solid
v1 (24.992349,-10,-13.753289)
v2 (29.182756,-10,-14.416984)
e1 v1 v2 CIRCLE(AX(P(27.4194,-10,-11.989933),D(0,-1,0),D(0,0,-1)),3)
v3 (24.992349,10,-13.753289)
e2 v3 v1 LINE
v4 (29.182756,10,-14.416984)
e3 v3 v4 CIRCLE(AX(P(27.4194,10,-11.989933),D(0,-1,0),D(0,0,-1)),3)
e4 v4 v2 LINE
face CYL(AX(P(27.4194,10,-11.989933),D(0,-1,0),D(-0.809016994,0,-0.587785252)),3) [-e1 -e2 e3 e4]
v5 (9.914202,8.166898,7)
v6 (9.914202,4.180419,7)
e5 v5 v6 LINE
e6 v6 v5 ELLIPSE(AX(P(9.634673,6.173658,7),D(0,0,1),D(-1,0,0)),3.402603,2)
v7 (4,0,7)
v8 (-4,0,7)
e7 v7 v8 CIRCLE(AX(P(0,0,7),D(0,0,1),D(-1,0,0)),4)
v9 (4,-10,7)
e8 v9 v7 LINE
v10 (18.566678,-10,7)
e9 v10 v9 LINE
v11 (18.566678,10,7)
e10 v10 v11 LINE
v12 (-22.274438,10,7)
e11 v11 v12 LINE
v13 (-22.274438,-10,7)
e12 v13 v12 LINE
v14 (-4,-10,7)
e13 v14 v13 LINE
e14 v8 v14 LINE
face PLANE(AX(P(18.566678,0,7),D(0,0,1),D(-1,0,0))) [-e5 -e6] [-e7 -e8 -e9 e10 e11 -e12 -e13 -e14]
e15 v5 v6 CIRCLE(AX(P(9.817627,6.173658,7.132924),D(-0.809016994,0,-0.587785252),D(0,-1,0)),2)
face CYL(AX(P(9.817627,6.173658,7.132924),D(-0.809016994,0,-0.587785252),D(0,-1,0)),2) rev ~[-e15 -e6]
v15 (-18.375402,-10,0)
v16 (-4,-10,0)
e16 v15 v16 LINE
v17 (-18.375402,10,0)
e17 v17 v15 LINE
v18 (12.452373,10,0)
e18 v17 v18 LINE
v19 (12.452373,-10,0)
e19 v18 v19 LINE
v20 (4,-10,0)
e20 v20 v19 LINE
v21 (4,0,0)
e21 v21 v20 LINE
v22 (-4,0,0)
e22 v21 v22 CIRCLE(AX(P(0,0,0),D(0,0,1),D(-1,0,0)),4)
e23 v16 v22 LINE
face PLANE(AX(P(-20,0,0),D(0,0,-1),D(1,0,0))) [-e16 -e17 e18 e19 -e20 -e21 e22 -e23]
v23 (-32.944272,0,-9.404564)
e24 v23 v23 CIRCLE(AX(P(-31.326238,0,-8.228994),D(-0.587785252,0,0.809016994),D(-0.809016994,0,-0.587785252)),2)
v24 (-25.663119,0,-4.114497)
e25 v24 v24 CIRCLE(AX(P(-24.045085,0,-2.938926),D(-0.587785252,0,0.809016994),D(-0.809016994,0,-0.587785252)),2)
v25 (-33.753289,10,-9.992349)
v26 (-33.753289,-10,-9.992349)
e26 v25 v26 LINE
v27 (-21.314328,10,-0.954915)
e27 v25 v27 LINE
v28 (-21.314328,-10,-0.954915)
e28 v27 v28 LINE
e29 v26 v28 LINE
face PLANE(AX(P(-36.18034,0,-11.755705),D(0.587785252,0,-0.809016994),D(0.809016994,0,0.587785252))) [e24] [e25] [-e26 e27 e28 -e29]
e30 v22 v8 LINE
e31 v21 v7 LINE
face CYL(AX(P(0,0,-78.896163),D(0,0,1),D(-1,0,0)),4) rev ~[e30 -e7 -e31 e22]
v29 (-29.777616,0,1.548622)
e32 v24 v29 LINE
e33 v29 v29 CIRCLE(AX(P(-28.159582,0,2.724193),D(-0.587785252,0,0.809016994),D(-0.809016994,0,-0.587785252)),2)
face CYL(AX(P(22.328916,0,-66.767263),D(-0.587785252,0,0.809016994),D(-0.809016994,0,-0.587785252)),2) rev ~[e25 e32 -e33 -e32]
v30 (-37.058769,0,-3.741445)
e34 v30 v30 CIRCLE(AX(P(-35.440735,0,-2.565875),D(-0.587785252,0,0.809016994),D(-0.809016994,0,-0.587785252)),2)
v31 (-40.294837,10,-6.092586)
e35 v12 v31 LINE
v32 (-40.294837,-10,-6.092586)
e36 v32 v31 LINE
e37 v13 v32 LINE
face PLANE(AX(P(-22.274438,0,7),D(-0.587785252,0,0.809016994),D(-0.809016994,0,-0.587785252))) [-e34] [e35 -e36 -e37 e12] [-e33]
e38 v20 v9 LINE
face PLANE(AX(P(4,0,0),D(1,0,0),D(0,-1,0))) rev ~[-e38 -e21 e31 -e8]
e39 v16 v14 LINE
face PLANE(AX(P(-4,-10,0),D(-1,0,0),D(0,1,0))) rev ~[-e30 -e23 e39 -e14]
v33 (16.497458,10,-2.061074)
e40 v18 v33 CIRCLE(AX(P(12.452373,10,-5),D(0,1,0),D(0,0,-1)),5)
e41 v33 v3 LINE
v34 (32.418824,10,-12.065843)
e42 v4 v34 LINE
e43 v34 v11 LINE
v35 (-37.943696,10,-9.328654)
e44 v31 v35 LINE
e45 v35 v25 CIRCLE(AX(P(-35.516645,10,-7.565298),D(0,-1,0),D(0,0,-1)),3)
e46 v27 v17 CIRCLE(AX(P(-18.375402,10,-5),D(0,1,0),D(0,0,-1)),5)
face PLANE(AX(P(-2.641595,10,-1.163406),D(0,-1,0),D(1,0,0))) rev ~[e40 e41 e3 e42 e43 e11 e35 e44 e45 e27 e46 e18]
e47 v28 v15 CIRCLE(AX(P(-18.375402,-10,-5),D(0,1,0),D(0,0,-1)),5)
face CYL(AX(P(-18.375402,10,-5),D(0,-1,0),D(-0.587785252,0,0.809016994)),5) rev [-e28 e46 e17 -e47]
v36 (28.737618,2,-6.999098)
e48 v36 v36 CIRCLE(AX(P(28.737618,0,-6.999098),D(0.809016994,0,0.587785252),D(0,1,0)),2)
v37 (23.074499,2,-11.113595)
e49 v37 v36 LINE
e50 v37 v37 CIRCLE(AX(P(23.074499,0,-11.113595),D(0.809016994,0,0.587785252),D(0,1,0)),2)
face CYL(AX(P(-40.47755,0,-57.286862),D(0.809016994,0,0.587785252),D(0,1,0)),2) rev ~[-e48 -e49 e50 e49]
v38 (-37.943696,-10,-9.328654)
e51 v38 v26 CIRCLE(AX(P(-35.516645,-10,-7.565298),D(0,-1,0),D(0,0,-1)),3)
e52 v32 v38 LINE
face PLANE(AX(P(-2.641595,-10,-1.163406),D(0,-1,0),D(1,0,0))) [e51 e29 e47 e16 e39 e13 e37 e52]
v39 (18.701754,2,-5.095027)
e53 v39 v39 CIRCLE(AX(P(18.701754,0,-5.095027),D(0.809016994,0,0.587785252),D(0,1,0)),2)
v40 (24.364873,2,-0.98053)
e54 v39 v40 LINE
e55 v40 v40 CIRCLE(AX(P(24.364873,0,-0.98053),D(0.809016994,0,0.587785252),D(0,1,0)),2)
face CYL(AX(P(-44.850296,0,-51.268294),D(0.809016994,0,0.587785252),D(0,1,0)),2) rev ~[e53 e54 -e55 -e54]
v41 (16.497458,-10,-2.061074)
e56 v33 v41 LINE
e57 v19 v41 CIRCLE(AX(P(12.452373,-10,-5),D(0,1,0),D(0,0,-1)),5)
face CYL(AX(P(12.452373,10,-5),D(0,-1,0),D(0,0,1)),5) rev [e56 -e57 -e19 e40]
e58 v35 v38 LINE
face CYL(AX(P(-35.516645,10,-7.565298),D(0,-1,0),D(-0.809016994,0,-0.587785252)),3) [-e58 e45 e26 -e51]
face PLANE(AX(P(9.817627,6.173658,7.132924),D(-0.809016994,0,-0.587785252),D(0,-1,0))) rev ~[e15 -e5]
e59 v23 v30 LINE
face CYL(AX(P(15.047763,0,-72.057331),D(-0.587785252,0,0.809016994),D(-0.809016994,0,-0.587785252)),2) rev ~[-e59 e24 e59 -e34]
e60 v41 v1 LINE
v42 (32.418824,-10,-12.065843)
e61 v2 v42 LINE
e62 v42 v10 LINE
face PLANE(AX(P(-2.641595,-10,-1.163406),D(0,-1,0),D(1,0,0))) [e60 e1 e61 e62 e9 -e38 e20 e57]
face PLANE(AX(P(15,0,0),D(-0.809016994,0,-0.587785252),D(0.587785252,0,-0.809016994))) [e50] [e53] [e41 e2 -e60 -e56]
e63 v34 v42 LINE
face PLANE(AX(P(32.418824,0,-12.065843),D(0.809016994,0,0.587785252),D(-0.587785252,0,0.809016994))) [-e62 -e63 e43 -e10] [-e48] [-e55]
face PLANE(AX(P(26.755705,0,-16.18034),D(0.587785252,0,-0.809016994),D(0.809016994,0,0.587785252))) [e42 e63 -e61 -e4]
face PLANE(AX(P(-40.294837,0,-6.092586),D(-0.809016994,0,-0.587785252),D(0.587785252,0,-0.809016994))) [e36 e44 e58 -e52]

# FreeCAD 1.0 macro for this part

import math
import FreeCAD as App
import Part
import Sketcher

V = App.Vector
Q = App.Units.Quantity


def edges_at(feature, points):
    """Names of the edges that pass closest to the given points."""
    edges = feature.Shape.Edges
    near = lambda p: min(range(len(edges)), key=lambda i: edges[i].distToShape(Part.Vertex(*p))[0])
    return sorted({f"Edge{near(p) + 1}" for p in points})


def add_polygon(sketch, points):
    """Adds a closed chain of lines whose ends are joined by coincident constraints."""
    first, n = sketch.GeometryCount, len(points)
    for a, b in zip(points, points[1:] + points[:1]):
        sketch.addGeometry(Part.LineSegment(App.Vector(*a, 0), App.Vector(*b, 0)), False)
    for i in range(n):
        sketch.addConstraint(Sketcher.Constraint("Coincident", first + i, 2, first + (i + 1) % n, 1))

doc = App.newDocument("Part")
body = doc.addObject("PartDesign::Body", "Body")

# Sketch on XZ plane
sketch1 = body.newObject("Sketcher::SketchObject", "Sketch")
sketch1.AttachmentSupport = (doc.getObject("XZ_Plane"), [""])
sketch1.MapMode = "FlatFace"
add_polygon(sketch1, [(-40, -6), (-36, -12), (-20, 0), (15, 0), (27, -16), (32, -12), (19, 7), (-22, 7)])  # lines 0-7
sketch1.addConstraint([
    Sketcher.Constraint("Horizontal", 2),
    Sketcher.Constraint("Horizontal", 6),
    Sketcher.Constraint("PointOnObject", 1, 2, -1),
    Sketcher.Constraint("Perpendicular", 0, 1),
    Sketcher.Constraint("Perpendicular", 1, 3),
    Sketcher.Constraint("Perpendicular", 3, 4),
    Sketcher.Constraint("Perpendicular", 4, 5),
    Sketcher.Constraint("Perpendicular", 5, 7),
    Sketcher.Constraint("Equal", 1, 3),
    Sketcher.Constraint("Equal", 0, 4),
    Sketcher.Constraint("DistanceX", 2, 1, 2, 2, 35.0),
    Sketcher.Constraint("Angle", 0, Q("-54 deg")),
    Sketcher.Constraint("Distance", 0, 7.0),
    Sketcher.Constraint("Distance", 1, 20.0),
    Sketcher.Constraint("DistanceX", 1, 2, -1, 1, 20.0),
    Sketcher.Constraint("DistanceY", -1, 1, 5, 2, 7.0),
])
pad1 = body.newObject("PartDesign::Pad", "Pad")
pad1.Profile = sketch1
pad1.Type = "TwoLengths"
pad1.Length = 10
pad1.Length2 = 10

# Sketch on an angled plane
sketch2 = body.newObject("Sketcher::SketchObject", "Sketch001")
sketch2.Placement = App.Placement(V(-6.90983, 0, 9.510565), App.Rotation(V(0.809016994, 0, 0.587785252), V(0, -0.999999999, 0), V(0.587785252, 0, -0.809016994), "ZXY"))
sketch2.addGeometry([
    Part.Circle(V(0, -37.9, 0), V(0, 0, 1), 2),
    Part.Circle(V(0, -24, 0), V(0, 0, 1), 2),
    Part.Circle(V(-30.2, 0, 0), V(0, 0, 1), 2),
    Part.Circle(V(-21.2, 0, 0), V(0, 0, 1), 2),
], False)
sketch2.addConstraint([
    Sketcher.Constraint("Equal", 0, 1),
    Sketcher.Constraint("Equal", 1, 2),
    Sketcher.Constraint("Equal", 2, 3),
    Sketcher.Constraint("PointOnObject", 0, 3, -2),
    Sketcher.Constraint("PointOnObject", 1, 3, -2),
    Sketcher.Constraint("PointOnObject", 2, 3, -1),
    Sketcher.Constraint("PointOnObject", 3, 3, -1),
    Sketcher.Constraint("Diameter", 0, 4.0),
    Sketcher.Constraint("DistanceX", 2, 3, 3, 3, 9.0),
    Sketcher.Constraint("DistanceX", 2, 3, -1, 1, 30.18034),
    Sketcher.Constraint("DistanceY", 0, 3, -1, 1, 37.853277),
    Sketcher.Constraint("DistanceY", 1, 3, -1, 1, 24.008233),
])
doc.recompute()
hole = body.newObject("PartDesign::Hole", "Hole")
hole.Profile = sketch2
hole.ThreadType = "None"
hole.Diameter = 4
hole.DepthType = "ThroughAll"

# Sketch on an angled plane
sketch3 = body.newObject("Sketcher::SketchObject", "Sketch002")
sketch3.Placement = App.Placement(V(9.817627, 0, 7.132924), App.Rotation(V(0, -1, 0), V(-0.587785252, 0, 0.809016994), V(-0.809016994, 0, -0.587785252), "ZXY"))
sketch3.addGeometry([
    Part.Circle(V(-6.2, 0, 0), V(0, 0, 1), 2),
    Part.Circle(V(16.1, 0, 0), V(0, 0, 1), 2),
], False)
sketch3.addConstraint([
    Sketcher.Constraint("Equal", 0, 1),
    Sketcher.Constraint("PointOnObject", 0, 3, -1),
    Sketcher.Constraint("PointOnObject", 1, 3, -1),
    Sketcher.Constraint("Diameter", 0, 4.0),
    Sketcher.Constraint("DistanceX", 0, 3, -1, 1, 6.173658),
    Sketcher.Constraint("DistanceX", -1, 1, 1, 3, 16.058304),
])
pocket1 = body.newObject("PartDesign::Pocket", "Pocket")
pocket1.Profile = sketch3
pocket1.Type = "ThroughAll"

# Sketch on XY plane
sketch4 = body.newObject("Sketcher::SketchObject", "Sketch003")
sketch4.AttachmentSupport = (doc.getObject("XY_Plane"), [""])
sketch4.MapMode = "FlatFace"
sketch4.addGeometry(Part.Circle(V(0, 0, 0), V(0, 0, 1), 4), False)
sketch4.addConstraint([
    Sketcher.Constraint("Coincident", 0, 3, -1, 1),
    Sketcher.Constraint("Diameter", 0, 8.0),
])
doc.recompute()
hole2 = body.newObject("PartDesign::Hole", "Hole001")
hole2.Profile = sketch4
hole2.ThreadType = "None"
hole2.Diameter = 8
hole2.DepthType = "ThroughAll"
hole2.Reversed = True
doc.recompute()

fillet = body.newObject("PartDesign::Fillet", "Fillet")
fillet.Base = (hole2, edges_at(hole2, [(-36.18, 0, -11.756), (26.756, 0, -16.18)]))
fillet.Radius = 3
doc.recompute()

fillet2 = body.newObject("PartDesign::Fillet", "Fillet001")
fillet2.Base = (fillet, edges_at(fillet, [(-20, 0, 0), (15, 0, 0)]))
fillet2.Radius = 5

# Sketch on an angled plane
sketch5 = body.newObject("Sketcher::SketchObject", "Sketch004")
sketch5.Placement = App.Placement(V(9.817627, 0, 7.132924), App.Rotation(V(0, -1, 0), V(-0.587785252, 0, 0.809016994), V(-0.809016994, 0, -0.587785252), "ZXY"))
sketch5.addGeometry([
    Part.Circle(V(0, -15.1, 0), V(0, 0, 1), 2),
    Part.Circle(V(0, -22.6, 0), V(0, 0, 1), 2),
], False)
sketch5.addConstraint([
    Sketcher.Constraint("Equal", 0, 1),
    Sketcher.Constraint("PointOnObject", 0, 3, -2),
    Sketcher.Constraint("PointOnObject", 1, 3, -2),
    Sketcher.Constraint("Diameter", 0, 4.0),
    Sketcher.Constraint("DistanceY", 0, 3, -1, 1, 15.114578),
    Sketcher.Constraint("DistanceY", 1, 3, 0, 3, 7.439359),
])
doc.recompute()
hole3 = body.newObject("PartDesign::Hole", "Hole002")
hole3.Profile = sketch5
hole3.ThreadType = "None"
hole3.Diameter = 4
hole3.DepthType = "ThroughAll"

# Sketch on XY plane
sketch6 = body.newObject("Sketcher::SketchObject", "Sketch005")
sketch6.AttachmentSupport = (doc.getObject("XY_Plane"), [""])
sketch6.MapMode = "FlatFace"
sketch6.addGeometry([
    Part.LineSegment(V(-4, -10, 0), V(-4, 0, 0)),
    Part.ArcOfCircle(Part.Circle(V(0, 0, 0), V(0, 0, 1), 4), math.radians(180), math.radians(360)),
    Part.LineSegment(V(4, 0, 0), V(4, -10, 0)),
    Part.LineSegment(V(4, -10, 0), V(-4, -10, 0)),
], False)
sketch6.addConstraint([
    Sketcher.Constraint("Tangent", 0, 2, 1, 1),
    Sketcher.Constraint("Tangent", 1, 2, 2, 1),
    Sketcher.Constraint("Coincident", 2, 2, 3, 1),
    Sketcher.Constraint("Coincident", 3, 2, 0, 1),
    Sketcher.Constraint("Vertical", 0),
    Sketcher.Constraint("Vertical", 2),
    Sketcher.Constraint("Horizontal", 3),
    Sketcher.Constraint("Coincident", 1, 3, -1, 1),
    Sketcher.Constraint("Radius", 1, 4.0),
    Sketcher.Constraint("DistanceY", 0, 1, 0, 2, 10.0),
])
pocket2 = body.newObject("PartDesign::Pocket", "Pocket001")
pocket2.Profile = sketch6
pocket2.Length = 25
pocket2.Reversed = True

doc.recompute()
